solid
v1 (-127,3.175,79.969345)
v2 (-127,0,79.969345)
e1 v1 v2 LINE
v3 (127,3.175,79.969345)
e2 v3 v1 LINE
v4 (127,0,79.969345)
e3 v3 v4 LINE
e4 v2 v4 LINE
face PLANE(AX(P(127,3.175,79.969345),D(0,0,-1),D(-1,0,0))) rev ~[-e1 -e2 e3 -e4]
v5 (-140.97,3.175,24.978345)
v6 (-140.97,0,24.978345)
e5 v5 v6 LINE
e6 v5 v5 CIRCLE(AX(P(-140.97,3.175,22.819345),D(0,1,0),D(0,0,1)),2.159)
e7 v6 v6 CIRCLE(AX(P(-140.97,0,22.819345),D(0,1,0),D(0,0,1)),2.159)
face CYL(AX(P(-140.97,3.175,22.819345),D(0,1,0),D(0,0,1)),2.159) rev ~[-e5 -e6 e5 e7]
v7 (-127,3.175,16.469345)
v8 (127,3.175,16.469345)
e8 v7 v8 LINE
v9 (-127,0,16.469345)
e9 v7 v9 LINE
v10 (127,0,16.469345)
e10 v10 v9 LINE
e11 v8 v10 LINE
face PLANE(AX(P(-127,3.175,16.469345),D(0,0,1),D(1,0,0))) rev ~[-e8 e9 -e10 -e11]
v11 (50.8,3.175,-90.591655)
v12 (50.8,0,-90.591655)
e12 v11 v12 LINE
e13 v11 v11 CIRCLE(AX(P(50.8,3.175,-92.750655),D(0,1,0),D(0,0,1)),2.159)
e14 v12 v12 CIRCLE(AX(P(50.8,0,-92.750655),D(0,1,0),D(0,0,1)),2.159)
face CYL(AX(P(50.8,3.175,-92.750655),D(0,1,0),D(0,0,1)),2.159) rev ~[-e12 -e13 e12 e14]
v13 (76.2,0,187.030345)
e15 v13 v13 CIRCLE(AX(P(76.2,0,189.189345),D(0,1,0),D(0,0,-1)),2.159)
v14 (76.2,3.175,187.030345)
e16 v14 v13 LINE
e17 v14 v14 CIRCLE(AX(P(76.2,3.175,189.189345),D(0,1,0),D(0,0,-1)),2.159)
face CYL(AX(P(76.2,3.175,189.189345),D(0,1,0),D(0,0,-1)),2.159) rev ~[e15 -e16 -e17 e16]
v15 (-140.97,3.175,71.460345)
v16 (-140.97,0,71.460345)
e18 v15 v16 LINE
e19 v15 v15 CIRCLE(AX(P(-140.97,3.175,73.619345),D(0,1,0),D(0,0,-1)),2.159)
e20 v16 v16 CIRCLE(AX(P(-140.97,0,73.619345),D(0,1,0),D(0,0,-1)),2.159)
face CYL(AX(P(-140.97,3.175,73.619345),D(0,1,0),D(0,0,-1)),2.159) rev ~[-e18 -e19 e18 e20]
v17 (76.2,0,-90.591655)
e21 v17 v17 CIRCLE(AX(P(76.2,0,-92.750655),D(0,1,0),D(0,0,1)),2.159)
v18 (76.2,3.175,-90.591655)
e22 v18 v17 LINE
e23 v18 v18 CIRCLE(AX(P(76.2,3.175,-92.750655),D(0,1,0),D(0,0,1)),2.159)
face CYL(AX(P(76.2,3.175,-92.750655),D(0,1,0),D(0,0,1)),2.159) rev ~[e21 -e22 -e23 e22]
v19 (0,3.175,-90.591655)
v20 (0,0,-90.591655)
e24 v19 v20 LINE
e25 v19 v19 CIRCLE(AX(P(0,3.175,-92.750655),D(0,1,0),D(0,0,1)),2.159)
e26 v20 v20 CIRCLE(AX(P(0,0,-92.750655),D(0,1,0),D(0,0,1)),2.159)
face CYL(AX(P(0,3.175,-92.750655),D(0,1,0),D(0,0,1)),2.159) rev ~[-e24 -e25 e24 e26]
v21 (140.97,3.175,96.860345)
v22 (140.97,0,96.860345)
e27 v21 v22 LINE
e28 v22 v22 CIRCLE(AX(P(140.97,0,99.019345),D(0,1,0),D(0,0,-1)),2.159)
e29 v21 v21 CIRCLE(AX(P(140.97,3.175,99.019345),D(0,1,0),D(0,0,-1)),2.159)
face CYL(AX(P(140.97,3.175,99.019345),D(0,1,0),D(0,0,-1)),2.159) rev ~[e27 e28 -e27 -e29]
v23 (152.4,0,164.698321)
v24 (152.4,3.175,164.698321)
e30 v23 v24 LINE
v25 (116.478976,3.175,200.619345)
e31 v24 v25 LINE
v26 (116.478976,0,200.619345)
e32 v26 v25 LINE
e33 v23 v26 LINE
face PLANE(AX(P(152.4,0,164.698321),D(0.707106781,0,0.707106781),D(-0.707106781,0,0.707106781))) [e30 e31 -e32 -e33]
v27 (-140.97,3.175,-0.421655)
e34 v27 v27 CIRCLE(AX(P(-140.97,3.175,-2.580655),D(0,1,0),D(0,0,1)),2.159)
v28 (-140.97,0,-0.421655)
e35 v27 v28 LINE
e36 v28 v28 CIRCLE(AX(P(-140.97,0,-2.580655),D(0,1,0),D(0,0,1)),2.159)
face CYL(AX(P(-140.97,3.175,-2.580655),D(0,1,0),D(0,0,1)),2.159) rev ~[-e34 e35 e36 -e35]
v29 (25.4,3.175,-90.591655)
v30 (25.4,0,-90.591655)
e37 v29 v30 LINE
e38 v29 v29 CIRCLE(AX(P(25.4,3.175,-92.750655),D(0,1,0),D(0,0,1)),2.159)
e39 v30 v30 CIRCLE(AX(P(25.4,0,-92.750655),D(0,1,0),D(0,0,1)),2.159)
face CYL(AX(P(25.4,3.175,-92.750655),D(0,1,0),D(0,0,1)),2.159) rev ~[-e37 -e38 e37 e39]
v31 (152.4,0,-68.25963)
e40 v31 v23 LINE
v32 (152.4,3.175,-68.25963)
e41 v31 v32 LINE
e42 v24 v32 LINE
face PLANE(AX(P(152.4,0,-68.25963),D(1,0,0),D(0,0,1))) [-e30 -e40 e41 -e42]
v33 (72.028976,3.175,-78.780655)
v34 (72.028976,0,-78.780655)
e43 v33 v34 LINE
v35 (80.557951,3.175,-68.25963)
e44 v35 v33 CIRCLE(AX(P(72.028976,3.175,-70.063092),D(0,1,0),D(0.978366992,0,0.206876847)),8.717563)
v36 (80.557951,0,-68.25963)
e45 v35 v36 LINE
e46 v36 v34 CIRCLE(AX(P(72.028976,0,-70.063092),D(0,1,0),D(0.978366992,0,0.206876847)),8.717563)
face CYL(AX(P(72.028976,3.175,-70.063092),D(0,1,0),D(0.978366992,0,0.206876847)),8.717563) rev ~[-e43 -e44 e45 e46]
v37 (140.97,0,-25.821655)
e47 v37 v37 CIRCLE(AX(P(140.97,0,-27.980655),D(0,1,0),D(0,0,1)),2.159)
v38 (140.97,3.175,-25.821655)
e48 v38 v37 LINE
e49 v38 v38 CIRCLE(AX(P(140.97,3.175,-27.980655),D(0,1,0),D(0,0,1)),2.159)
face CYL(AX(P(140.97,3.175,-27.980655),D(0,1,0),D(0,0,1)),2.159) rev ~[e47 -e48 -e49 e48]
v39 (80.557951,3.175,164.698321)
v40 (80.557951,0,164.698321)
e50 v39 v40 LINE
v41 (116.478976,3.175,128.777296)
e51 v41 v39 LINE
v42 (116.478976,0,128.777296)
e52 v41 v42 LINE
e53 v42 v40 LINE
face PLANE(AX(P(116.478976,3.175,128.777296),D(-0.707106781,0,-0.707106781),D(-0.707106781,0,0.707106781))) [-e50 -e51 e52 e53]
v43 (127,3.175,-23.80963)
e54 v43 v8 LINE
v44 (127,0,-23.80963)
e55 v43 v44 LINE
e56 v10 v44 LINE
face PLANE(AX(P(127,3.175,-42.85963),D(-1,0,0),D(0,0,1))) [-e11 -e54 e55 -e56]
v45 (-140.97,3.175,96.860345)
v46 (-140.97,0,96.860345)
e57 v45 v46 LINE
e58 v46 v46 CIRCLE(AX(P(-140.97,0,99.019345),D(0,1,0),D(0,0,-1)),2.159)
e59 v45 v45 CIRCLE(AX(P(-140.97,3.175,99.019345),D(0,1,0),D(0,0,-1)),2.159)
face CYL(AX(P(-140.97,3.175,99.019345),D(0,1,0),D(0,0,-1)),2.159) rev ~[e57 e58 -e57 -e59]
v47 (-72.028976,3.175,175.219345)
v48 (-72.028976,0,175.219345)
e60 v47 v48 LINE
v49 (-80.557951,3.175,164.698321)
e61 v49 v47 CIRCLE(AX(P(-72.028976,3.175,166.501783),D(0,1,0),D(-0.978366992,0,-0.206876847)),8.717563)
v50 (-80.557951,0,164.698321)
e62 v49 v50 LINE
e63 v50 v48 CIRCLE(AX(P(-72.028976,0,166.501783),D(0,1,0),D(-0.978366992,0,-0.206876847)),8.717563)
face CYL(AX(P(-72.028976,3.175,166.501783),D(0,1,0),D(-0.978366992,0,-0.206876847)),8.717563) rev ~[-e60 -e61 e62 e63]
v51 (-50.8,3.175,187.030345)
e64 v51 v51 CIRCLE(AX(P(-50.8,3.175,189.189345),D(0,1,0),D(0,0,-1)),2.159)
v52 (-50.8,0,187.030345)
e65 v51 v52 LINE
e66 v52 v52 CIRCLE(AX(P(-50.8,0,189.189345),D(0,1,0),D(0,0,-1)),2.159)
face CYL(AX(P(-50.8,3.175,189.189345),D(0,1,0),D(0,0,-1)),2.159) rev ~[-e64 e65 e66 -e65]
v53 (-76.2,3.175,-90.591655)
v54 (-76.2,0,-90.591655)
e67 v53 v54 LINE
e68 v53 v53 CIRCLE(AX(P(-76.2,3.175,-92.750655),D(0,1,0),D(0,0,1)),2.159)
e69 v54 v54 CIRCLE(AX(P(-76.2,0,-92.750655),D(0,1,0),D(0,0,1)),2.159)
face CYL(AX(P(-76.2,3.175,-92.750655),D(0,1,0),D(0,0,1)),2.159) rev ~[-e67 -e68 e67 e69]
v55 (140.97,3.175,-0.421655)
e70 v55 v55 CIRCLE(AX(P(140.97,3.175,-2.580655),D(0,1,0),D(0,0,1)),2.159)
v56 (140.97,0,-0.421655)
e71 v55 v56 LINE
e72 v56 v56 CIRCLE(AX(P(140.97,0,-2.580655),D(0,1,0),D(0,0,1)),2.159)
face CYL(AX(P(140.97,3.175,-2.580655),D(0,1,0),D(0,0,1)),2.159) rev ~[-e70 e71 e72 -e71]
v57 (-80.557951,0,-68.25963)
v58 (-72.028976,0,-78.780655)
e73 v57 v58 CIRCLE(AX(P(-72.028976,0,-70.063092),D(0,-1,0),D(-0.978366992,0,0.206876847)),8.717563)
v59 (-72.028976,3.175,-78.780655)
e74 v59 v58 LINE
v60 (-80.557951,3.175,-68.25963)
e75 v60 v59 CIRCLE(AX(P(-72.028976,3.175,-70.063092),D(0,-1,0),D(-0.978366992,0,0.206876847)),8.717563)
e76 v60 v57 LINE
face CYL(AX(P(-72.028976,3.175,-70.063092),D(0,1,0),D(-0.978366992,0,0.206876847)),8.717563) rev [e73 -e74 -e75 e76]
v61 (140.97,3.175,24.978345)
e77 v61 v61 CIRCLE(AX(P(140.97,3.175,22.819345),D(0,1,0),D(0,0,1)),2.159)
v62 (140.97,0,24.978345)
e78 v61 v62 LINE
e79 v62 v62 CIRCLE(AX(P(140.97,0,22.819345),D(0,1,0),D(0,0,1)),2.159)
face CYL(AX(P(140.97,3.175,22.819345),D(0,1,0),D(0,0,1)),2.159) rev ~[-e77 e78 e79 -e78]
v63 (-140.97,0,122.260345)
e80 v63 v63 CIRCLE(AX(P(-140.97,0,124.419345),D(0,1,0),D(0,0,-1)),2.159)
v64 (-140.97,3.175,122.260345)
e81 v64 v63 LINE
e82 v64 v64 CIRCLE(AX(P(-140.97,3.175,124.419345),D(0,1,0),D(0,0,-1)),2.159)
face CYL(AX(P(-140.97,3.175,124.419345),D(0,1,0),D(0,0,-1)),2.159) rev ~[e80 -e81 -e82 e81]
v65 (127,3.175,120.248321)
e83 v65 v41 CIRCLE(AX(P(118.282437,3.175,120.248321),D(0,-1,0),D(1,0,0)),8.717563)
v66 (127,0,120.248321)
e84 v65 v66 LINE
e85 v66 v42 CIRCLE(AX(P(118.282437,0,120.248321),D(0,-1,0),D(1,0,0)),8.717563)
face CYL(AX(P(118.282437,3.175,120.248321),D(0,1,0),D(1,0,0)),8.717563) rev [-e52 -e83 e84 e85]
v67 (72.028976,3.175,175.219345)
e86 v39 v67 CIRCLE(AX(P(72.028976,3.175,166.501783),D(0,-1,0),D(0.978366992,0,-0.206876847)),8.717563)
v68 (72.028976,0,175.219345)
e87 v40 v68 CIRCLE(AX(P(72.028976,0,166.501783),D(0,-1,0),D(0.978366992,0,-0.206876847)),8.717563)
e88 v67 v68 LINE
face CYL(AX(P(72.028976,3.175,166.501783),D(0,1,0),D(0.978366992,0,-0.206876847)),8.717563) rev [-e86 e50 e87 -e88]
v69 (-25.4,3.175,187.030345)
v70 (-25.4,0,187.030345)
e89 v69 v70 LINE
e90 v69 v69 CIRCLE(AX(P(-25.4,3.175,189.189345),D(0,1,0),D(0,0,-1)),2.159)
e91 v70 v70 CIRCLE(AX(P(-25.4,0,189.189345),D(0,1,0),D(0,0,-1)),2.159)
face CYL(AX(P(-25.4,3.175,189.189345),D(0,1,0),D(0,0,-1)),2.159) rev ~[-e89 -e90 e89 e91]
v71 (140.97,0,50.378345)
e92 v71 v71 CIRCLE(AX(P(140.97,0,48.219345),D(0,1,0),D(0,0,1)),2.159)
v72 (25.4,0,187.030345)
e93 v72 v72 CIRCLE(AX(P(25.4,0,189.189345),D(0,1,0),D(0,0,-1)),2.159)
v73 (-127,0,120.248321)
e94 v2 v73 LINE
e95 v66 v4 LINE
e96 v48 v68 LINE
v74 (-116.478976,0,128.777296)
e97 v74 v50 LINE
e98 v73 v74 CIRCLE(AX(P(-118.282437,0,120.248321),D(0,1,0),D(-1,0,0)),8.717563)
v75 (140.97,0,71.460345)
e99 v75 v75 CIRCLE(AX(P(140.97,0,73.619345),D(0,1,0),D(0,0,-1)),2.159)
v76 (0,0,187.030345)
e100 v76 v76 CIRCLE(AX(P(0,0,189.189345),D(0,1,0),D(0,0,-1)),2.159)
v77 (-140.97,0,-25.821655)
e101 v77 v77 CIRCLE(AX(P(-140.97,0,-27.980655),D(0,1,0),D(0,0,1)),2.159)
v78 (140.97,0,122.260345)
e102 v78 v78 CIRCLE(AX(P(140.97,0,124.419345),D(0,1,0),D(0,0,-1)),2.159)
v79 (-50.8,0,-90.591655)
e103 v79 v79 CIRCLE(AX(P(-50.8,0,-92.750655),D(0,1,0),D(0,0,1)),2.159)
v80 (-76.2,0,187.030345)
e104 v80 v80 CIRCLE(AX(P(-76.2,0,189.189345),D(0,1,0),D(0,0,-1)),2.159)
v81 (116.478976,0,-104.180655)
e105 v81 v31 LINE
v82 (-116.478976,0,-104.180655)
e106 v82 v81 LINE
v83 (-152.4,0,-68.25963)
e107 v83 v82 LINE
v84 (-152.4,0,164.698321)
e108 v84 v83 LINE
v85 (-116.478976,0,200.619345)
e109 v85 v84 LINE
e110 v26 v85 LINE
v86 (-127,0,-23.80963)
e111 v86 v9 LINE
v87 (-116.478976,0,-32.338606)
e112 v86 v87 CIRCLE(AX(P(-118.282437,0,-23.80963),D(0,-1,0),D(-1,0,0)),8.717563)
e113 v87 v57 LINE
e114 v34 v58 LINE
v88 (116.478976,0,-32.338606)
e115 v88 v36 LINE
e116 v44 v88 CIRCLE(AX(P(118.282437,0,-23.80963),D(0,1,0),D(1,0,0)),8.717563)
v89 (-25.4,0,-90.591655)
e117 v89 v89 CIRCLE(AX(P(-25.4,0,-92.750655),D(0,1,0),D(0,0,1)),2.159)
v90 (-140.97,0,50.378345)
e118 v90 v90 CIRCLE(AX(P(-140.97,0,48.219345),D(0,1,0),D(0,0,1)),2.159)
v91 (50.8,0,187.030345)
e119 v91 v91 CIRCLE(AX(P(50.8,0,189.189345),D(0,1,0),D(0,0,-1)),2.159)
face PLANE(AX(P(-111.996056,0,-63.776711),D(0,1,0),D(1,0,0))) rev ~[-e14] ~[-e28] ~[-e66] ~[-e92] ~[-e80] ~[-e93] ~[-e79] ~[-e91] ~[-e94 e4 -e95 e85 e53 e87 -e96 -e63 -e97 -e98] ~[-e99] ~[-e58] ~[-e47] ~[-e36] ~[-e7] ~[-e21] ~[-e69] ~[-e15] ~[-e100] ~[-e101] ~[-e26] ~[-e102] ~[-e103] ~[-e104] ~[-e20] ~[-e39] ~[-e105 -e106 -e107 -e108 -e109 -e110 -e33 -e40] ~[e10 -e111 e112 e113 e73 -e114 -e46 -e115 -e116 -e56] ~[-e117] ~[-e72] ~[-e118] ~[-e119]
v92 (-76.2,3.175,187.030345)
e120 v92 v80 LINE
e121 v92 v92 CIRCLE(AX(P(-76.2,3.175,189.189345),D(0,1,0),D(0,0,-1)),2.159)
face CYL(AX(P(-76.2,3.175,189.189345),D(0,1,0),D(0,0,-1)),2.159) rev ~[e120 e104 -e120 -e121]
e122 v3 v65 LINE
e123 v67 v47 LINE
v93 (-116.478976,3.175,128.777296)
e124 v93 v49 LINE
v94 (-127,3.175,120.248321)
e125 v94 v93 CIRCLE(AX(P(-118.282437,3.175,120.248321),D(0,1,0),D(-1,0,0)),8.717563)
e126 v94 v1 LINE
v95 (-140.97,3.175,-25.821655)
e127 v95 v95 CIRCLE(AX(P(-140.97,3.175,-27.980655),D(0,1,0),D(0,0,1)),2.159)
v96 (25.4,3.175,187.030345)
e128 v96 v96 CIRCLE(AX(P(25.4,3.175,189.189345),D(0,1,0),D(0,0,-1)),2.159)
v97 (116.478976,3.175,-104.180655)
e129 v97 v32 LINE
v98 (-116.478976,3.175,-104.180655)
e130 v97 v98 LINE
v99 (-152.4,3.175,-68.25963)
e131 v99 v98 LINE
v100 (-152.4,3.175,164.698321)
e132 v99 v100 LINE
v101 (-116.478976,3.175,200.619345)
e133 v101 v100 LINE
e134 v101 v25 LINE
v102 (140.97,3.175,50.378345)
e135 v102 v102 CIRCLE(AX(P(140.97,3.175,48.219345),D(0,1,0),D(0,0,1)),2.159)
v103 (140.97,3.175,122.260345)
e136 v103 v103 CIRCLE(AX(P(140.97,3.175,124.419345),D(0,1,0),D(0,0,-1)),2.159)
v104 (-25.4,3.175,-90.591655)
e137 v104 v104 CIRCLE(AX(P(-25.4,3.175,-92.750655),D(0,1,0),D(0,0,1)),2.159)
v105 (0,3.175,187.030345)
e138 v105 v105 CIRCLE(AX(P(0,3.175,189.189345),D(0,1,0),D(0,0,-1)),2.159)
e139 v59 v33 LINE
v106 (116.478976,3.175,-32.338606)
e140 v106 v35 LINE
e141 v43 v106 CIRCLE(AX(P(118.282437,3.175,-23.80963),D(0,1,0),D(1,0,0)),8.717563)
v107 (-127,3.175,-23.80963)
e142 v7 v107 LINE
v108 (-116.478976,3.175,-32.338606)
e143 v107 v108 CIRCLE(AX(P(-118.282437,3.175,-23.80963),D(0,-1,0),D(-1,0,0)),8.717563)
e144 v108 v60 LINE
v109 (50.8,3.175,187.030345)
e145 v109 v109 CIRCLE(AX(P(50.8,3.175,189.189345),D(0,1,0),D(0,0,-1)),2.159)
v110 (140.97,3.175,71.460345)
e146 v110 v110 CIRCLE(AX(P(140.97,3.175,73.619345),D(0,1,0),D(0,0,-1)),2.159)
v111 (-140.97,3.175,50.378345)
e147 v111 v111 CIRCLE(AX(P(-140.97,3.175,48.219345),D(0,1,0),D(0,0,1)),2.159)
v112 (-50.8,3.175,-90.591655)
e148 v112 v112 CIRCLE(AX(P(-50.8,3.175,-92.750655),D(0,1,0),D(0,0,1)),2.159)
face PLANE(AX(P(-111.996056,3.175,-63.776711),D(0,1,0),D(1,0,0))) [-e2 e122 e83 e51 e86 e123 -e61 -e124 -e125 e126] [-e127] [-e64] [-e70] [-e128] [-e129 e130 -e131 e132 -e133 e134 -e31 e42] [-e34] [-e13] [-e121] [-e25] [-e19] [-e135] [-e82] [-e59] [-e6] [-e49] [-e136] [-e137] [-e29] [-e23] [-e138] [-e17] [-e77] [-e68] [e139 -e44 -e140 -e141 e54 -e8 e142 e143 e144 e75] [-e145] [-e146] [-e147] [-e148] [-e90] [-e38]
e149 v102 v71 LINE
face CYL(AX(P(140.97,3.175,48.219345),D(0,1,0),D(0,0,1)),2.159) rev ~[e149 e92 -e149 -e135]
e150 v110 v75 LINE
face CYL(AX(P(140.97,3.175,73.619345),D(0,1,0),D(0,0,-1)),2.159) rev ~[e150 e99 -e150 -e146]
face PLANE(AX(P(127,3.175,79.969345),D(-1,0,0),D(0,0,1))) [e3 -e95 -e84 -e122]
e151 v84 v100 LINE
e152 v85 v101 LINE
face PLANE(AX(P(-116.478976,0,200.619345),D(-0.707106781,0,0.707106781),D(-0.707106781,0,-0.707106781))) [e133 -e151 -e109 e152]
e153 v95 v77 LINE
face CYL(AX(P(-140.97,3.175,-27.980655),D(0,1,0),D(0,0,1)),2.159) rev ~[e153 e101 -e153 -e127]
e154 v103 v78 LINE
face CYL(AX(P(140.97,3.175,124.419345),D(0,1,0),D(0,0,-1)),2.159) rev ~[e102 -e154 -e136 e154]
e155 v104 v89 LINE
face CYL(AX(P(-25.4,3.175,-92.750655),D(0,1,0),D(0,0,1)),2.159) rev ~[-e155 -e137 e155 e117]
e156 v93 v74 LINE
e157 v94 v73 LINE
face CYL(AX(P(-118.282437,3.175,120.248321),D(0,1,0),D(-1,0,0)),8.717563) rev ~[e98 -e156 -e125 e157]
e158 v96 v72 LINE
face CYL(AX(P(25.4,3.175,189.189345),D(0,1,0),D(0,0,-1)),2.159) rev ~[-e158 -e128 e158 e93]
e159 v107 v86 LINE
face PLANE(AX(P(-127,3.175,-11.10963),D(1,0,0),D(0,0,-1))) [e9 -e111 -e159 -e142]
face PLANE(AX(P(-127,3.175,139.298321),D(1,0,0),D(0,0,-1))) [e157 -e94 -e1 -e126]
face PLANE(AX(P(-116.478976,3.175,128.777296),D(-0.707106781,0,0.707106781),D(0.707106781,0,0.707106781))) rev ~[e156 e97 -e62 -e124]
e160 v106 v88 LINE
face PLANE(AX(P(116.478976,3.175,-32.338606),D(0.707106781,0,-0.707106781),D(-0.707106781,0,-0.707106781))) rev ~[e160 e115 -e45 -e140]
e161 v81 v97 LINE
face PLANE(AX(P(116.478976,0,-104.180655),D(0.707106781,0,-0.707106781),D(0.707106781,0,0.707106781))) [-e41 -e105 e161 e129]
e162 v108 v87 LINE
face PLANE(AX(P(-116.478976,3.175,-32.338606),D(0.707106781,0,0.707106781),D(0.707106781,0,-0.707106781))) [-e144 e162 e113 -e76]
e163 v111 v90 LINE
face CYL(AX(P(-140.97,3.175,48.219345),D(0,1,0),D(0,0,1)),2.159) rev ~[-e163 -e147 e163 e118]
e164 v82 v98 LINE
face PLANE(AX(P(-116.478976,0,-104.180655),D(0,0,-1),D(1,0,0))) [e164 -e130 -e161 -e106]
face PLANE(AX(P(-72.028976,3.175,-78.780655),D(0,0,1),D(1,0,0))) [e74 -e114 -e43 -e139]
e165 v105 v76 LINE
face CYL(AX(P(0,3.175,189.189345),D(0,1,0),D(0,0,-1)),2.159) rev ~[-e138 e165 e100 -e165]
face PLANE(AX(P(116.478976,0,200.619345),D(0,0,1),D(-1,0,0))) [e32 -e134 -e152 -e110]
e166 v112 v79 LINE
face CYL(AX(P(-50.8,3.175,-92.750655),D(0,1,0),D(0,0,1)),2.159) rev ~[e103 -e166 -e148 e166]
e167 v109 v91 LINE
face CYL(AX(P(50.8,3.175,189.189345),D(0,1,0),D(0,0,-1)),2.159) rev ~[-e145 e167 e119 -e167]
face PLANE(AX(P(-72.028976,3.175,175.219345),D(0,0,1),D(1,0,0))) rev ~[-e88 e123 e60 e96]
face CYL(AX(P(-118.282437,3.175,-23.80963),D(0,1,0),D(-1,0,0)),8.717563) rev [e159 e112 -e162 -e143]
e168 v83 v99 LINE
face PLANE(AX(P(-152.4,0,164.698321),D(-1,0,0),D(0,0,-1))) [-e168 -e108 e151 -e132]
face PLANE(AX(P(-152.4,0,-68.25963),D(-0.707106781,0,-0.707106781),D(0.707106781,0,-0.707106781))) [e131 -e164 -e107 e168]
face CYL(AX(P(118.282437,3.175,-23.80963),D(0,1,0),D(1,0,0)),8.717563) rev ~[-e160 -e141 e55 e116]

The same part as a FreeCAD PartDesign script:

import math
import FreeCAD as App
import Part
import Sketcher
from FreeCAD import Vector
Q = App.Units.Quantity


def add_polygon(sketch, points):
    """Adds a closed chain of lines whose ends are joined by coincident constraints."""
    first, n = sketch.GeometryCount, len(points)
    for a, b in zip(points, points[1:] + points[:1]):
        sketch.addGeometry(Part.LineSegment(App.Vector(*a, 0), App.Vector(*b, 0)), False)
    for i in range(n):
        sketch.addConstraint(Sketcher.Constraint("Coincident", first + i, 2, first + (i + 1) % n, 1))

doc = App.newDocument("Part")
body = doc.addObject("PartDesign::Body", "Body")

sketch1 = body.newObject("Sketcher::SketchObject", "Sketch")
sketch1.AttachmentSupport = (doc.getObject("XZ_Plane"), [""])
sketch1.MapMode = "FlatFace"
add_polygon(sketch1, [(-116, -104), (-152, -68), (-152, 165), (-116, 201), (116, 201), (152, 165), (152, -68), (116, -104)])
sketch1.addConstraint(Sketcher.Constraint("Vertical", 1))
sketch1.addConstraint(Sketcher.Constraint("Horizontal", 3))
sketch1.addConstraint(Sketcher.Constraint("Vertical", 5))
sketch1.addConstraint(Sketcher.Constraint("Horizontal", 7))
sketch1.addConstraint(Sketcher.Constraint("Symmetric", 1, 2, 4, 2, -2))
sketch1.addConstraint(Sketcher.Constraint("Perpendicular", 0, 2))
sketch1.addConstraint(Sketcher.Constraint("Perpendicular", 2, 4))
sketch1.addConstraint(Sketcher.Constraint("Perpendicular", 4, 6))
sketch1.addConstraint(Sketcher.Constraint("Horizontal", 0, 2, 5, 2))
sketch1.addConstraint(Sketcher.Constraint("Vertical", 3, 2, 6, 2))
sketch1.addConstraint(Sketcher.Constraint("Vertical", 2, 2, 7, 2))
sketch1.addConstraint(Sketcher.Constraint("Equal", 7, 1))
sketch1.addConstraint(Sketcher.Constraint("Distance", 0, Q("2 in")))
sketch1.addConstraint(Sketcher.Constraint("DistanceX", 0, 2, -1, 1, Q("6 in")))
sketch1.addConstraint(Sketcher.Constraint("DistanceY", 0, 2, -1, 1, 68.25963))
pad1 = body.newObject("PartDesign::Pad", "Pad")
pad1.Profile = sketch1
pad1.Length = Q("0.125 in")
pad1.Reversed = True

sketch2 = body.newObject("Sketcher::SketchObject", "Sketch001")
sketch2.AttachmentSupport = (doc.getObject("XZ_Plane"), [""])
sketch2.MapMode = "FlatFace"
sketch2.AttachmentOffset = App.Placement(Vector(0, 0, -0.125 * 25.4), App.Rotation())
add_polygon(sketch2, [(91, -79), (-91, -79), (-127, -43), (-127, 16), (127, 16), (127, -43)])
add_polygon(sketch2, [(91, 175), (127, 139), (127, 80), (-127, 80), (-127, 139), (-91, 175)])
sketch2.addConstraint(Sketcher.Constraint("Horizontal", 0))
sketch2.addConstraint(Sketcher.Constraint("Vertical", 2))
sketch2.addConstraint(Sketcher.Constraint("Horizontal", 3))
sketch2.addConstraint(Sketcher.Constraint("Vertical", 4))
sketch2.addConstraint(Sketcher.Constraint("Vertical", 7))
sketch2.addConstraint(Sketcher.Constraint("Horizontal", 8))
sketch2.addConstraint(Sketcher.Constraint("Vertical", 9))
sketch2.addConstraint(Sketcher.Constraint("Horizontal", 11))
sketch2.addConstraint(Sketcher.Constraint("Symmetric", 1, 2, 4, 2, -2))
sketch2.addConstraint(Sketcher.Constraint("Symmetric", 6, 2, 9, 2, -2))
sketch2.addConstraint(Sketcher.Constraint("Perpendicular", 1, 5))
sketch2.addConstraint(Sketcher.Constraint("Perpendicular", 5, 6))
sketch2.addConstraint(Sketcher.Constraint("Perpendicular", 6, 10))
sketch2.addConstraint(Sketcher.Constraint("Vertical", 4, 2, 6, 2))
sketch2.addConstraint(Sketcher.Constraint("Vertical", 0, 2, 10, 2))
sketch2.addConstraint(Sketcher.Constraint("Vertical", 5, 2, 11, 2))
sketch2.addConstraint(Sketcher.Constraint("Equal", 4, 7))
sketch2.addConstraint(Sketcher.Constraint("DistanceX", 3, 1, 3, 2, Q("10 in")))
sketch2.addConstraint(Sketcher.Constraint("Distance", 1, Q("2 in")))
sketch2.addConstraint(Sketcher.Constraint("DistanceY", 3, 2, 7, 2, Q("2.5 in")))
sketch2.addConstraint(Sketcher.Constraint("DistanceY", 0, 2, 2, 2, Q("3.75 in")))
sketch2.addConstraint(Sketcher.Constraint("DistanceY", 1, 2, -1, 1, 42.85963))
pocket1 = body.newObject("PartDesign::Pocket", "Pocket")
pocket1.Profile = sketch2
pocket1.Type = "ThroughAll"
pocket1.Reversed = True

sketch3 = body.newObject("Sketcher::SketchObject", "Sketch002")
sketch3.AttachmentSupport = (doc.getObject("XZ_Plane"), [""])
sketch3.MapMode = "FlatFace"
sketch3.AttachmentOffset = App.Placement(Vector(0, 0, -0.125 * 25.4), App.Rotation())
sketch3.addGeometry(Part.LineSegment(Vector(-116, -32, 0), Vector(-81, -68, 0)), False)
sketch3.addGeometry(Part.ArcOfCircle(Part.Circle(Vector(-72, -70, 0), Vector(0, 0, 1), 9), math.radians(168), math.radians(270)), False)
sketch3.addGeometry(Part.LineSegment(Vector(-72, -79, 0), Vector(-59, -79, 0)), False)
sketch3.addGeometry(Part.LineSegment(Vector(-59, -79, 0), Vector(-59, -104, 0)), False)
sketch3.addGeometry(Part.LineSegment(Vector(-59, -104, 0), Vector(-116, -104, 0)), False)
sketch3.addGeometry(Part.LineSegment(Vector(-116, -104, 0), Vector(-152, -68, 0)), False)
sketch3.addGeometry(Part.LineSegment(Vector(-152, -68, 0), Vector(-152, -11, 0)), False)
sketch3.addGeometry(Part.LineSegment(Vector(-152, -11, 0), Vector(-127, -11, 0)), False)
sketch3.addGeometry(Part.LineSegment(Vector(-127, -11, 0), Vector(-127, -24, 0)), False)
sketch3.addGeometry(Part.ArcOfCircle(Part.Circle(Vector(-118, -24, 0), Vector(0, 0, 1), 9), math.radians(-180), math.radians(-78)), False)
sketch3.addGeometry(Part.LineSegment(Vector(127, -24, 0), Vector(127, -11, 0)), False)
sketch3.addGeometry(Part.LineSegment(Vector(127, -11, 0), Vector(152, -11, 0)), False)
sketch3.addGeometry(Part.LineSegment(Vector(152, -11, 0), Vector(152, -68, 0)), False)
sketch3.addGeometry(Part.LineSegment(Vector(152, -68, 0), Vector(116, -104, 0)), False)
sketch3.addGeometry(Part.LineSegment(Vector(116, -104, 0), Vector(59, -104, 0)), False)
sketch3.addGeometry(Part.LineSegment(Vector(59, -104, 0), Vector(59, -79, 0)), False)
sketch3.addGeometry(Part.LineSegment(Vector(59, -79, 0), Vector(72, -79, 0)), False)
sketch3.addGeometry(Part.ArcOfCircle(Part.Circle(Vector(72, -70, 0), Vector(0, 0, 1), 9), math.radians(-90), math.radians(12)), False)
sketch3.addGeometry(Part.LineSegment(Vector(81, -68, 0), Vector(116, -32, 0)), False)
sketch3.addGeometry(Part.ArcOfCircle(Part.Circle(Vector(118, -24, 0), Vector(0, 0, 1), 9), math.radians(-102), math.radians(0)), False)
sketch3.addGeometry(Part.LineSegment(Vector(116, 129, 0), Vector(81, 165, 0)), False)
sketch3.addGeometry(Part.ArcOfCircle(Part.Circle(Vector(72, 167, 0), Vector(0, 0, 1), 9), math.radians(-12), math.radians(90)), False)
sketch3.addGeometry(Part.LineSegment(Vector(72, 175, 0), Vector(59, 175, 0)), False)
sketch3.addGeometry(Part.LineSegment(Vector(59, 175, 0), Vector(59, 201, 0)), False)
sketch3.addGeometry(Part.LineSegment(Vector(59, 201, 0), Vector(116, 201, 0)), False)
sketch3.addGeometry(Part.LineSegment(Vector(116, 201, 0), Vector(152, 165, 0)), False)
sketch3.addGeometry(Part.LineSegment(Vector(152, 165, 0), Vector(152, 108, 0)), False)
sketch3.addGeometry(Part.LineSegment(Vector(152, 108, 0), Vector(127, 108, 0)), False)
sketch3.addGeometry(Part.LineSegment(Vector(127, 108, 0), Vector(127, 120, 0)), False)
sketch3.addGeometry(Part.ArcOfCircle(Part.Circle(Vector(118, 120, 0), Vector(0, 0, 1), 9), math.radians(0), math.radians(102)), False)
sketch3.addGeometry(Part.LineSegment(Vector(-127, 120, 0), Vector(-127, 108, 0)), False)
sketch3.addGeometry(Part.LineSegment(Vector(-127, 108, 0), Vector(-152, 108, 0)), False)
sketch3.addGeometry(Part.LineSegment(Vector(-152, 108, 0), Vector(-152, 165, 0)), False)
sketch3.addGeometry(Part.LineSegment(Vector(-152, 165, 0), Vector(-116, 201, 0)), False)
sketch3.addGeometry(Part.LineSegment(Vector(-116, 201, 0), Vector(-59, 201, 0)), False)
sketch3.addGeometry(Part.LineSegment(Vector(-59, 201, 0), Vector(-59, 175, 0)), False)
sketch3.addGeometry(Part.LineSegment(Vector(-59, 175, 0), Vector(-72, 175, 0)), False)
sketch3.addGeometry(Part.ArcOfCircle(Part.Circle(Vector(-72, 167, 0), Vector(0, 0, 1), 9), math.radians(90), math.radians(192)), False)
sketch3.addGeometry(Part.LineSegment(Vector(-81, 165, 0), Vector(-116, 129, 0)), False)
sketch3.addGeometry(Part.ArcOfCircle(Part.Circle(Vector(-118, 120, 0), Vector(0, 0, 1), 9), math.radians(78), math.radians(180)), False)
sketch3.addConstraint(Sketcher.Constraint("Coincident", 0, 2, 1, 1))
sketch3.addConstraint(Sketcher.Constraint("Tangent", 1, 2, 2, 1))
sketch3.addConstraint(Sketcher.Constraint("Coincident", 2, 2, 3, 1))
sketch3.addConstraint(Sketcher.Constraint("Coincident", 3, 2, 4, 1))
sketch3.addConstraint(Sketcher.Constraint("Coincident", 4, 2, 5, 1))
sketch3.addConstraint(Sketcher.Constraint("Coincident", 5, 2, 6, 1))
sketch3.addConstraint(Sketcher.Constraint("Coincident", 6, 2, 7, 1))
sketch3.addConstraint(Sketcher.Constraint("Coincident", 7, 2, 8, 1))
sketch3.addConstraint(Sketcher.Constraint("Tangent", 8, 2, 9, 1))
sketch3.addConstraint(Sketcher.Constraint("Coincident", 9, 2, 0, 1))
sketch3.addConstraint(Sketcher.Constraint("Coincident", 10, 2, 11, 1))
sketch3.addConstraint(Sketcher.Constraint("Coincident", 11, 2, 12, 1))
sketch3.addConstraint(Sketcher.Constraint("Coincident", 12, 2, 13, 1))
sketch3.addConstraint(Sketcher.Constraint("Coincident", 13, 2, 14, 1))
sketch3.addConstraint(Sketcher.Constraint("Coincident", 14, 2, 15, 1))
sketch3.addConstraint(Sketcher.Constraint("Coincident", 15, 2, 16, 1))
sketch3.addConstraint(Sketcher.Constraint("Tangent", 16, 2, 17, 1))
sketch3.addConstraint(Sketcher.Constraint("Coincident", 17, 2, 18, 1))
sketch3.addConstraint(Sketcher.Constraint("Coincident", 18, 2, 19, 1))
sketch3.addConstraint(Sketcher.Constraint("Tangent", 19, 2, 10, 1))
sketch3.addConstraint(Sketcher.Constraint("Coincident", 20, 2, 21, 1))
sketch3.addConstraint(Sketcher.Constraint("Tangent", 21, 2, 22, 1))
sketch3.addConstraint(Sketcher.Constraint("Coincident", 22, 2, 23, 1))
sketch3.addConstraint(Sketcher.Constraint("Coincident", 23, 2, 24, 1))
sketch3.addConstraint(Sketcher.Constraint("Coincident", 24, 2, 25, 1))
sketch3.addConstraint(Sketcher.Constraint("Coincident", 25, 2, 26, 1))
sketch3.addConstraint(Sketcher.Constraint("Coincident", 26, 2, 27, 1))
sketch3.addConstraint(Sketcher.Constraint("Coincident", 27, 2, 28, 1))
sketch3.addConstraint(Sketcher.Constraint("Tangent", 28, 2, 29, 1))
sketch3.addConstraint(Sketcher.Constraint("Coincident", 29, 2, 20, 1))
sketch3.addConstraint(Sketcher.Constraint("Coincident", 30, 2, 31, 1))
sketch3.addConstraint(Sketcher.Constraint("Coincident", 31, 2, 32, 1))
sketch3.addConstraint(Sketcher.Constraint("Coincident", 32, 2, 33, 1))
sketch3.addConstraint(Sketcher.Constraint("Coincident", 33, 2, 34, 1))
sketch3.addConstraint(Sketcher.Constraint("Coincident", 34, 2, 35, 1))
sketch3.addConstraint(Sketcher.Constraint("Coincident", 35, 2, 36, 1))
sketch3.addConstraint(Sketcher.Constraint("Tangent", 36, 2, 37, 1))
sketch3.addConstraint(Sketcher.Constraint("Coincident", 37, 2, 38, 1))
sketch3.addConstraint(Sketcher.Constraint("Coincident", 38, 2, 39, 1))
sketch3.addConstraint(Sketcher.Constraint("Tangent", 39, 2, 30, 1))
sketch3.addConstraint(Sketcher.Constraint("Horizontal", 2))
sketch3.addConstraint(Sketcher.Constraint("Vertical", 3))
sketch3.addConstraint(Sketcher.Constraint("Horizontal", 4))
sketch3.addConstraint(Sketcher.Constraint("Vertical", 6))
sketch3.addConstraint(Sketcher.Constraint("Horizontal", 7))
sketch3.addConstraint(Sketcher.Constraint("Vertical", 8))
sketch3.addConstraint(Sketcher.Constraint("Vertical", 10))
sketch3.addConstraint(Sketcher.Constraint("Horizontal", 11))
sketch3.addConstraint(Sketcher.Constraint("Vertical", 12))
sketch3.addConstraint(Sketcher.Constraint("Horizontal", 14))
sketch3.addConstraint(Sketcher.Constraint("Vertical", 15))
sketch3.addConstraint(Sketcher.Constraint("Horizontal", 16))
sketch3.addConstraint(Sketcher.Constraint("Horizontal", 22))
sketch3.addConstraint(Sketcher.Constraint("Vertical", 23))
sketch3.addConstraint(Sketcher.Constraint("Horizontal", 24))
sketch3.addConstraint(Sketcher.Constraint("Vertical", 26))
sketch3.addConstraint(Sketcher.Constraint("Horizontal", 27))
sketch3.addConstraint(Sketcher.Constraint("Vertical", 28))
sketch3.addConstraint(Sketcher.Constraint("Vertical", 30))
sketch3.addConstraint(Sketcher.Constraint("Horizontal", 31))
sketch3.addConstraint(Sketcher.Constraint("Vertical", 32))
sketch3.addConstraint(Sketcher.Constraint("Horizontal", 34))
sketch3.addConstraint(Sketcher.Constraint("Vertical", 35))
sketch3.addConstraint(Sketcher.Constraint("Horizontal", 36))
sketch3.addConstraint(Sketcher.Constraint("Equal", 1, 9))
sketch3.addConstraint(Sketcher.Constraint("Equal", 9, 17))
sketch3.addConstraint(Sketcher.Constraint("Equal", 17, 19))
sketch3.addConstraint(Sketcher.Constraint("Equal", 19, 21))
sketch3.addConstraint(Sketcher.Constraint("Equal", 21, 29))
sketch3.addConstraint(Sketcher.Constraint("Equal", 29, 37))
sketch3.addConstraint(Sketcher.Constraint("Equal", 37, 39))
sketch3.addConstraint(Sketcher.Constraint("Symmetric", 1, 3, 17, 3, -2))
sketch3.addConstraint(Sketcher.Constraint("Symmetric", 9, 3, 19, 3, -2))
sketch3.addConstraint(Sketcher.Constraint("Symmetric", 21, 3, 37, 3, -2))
sketch3.addConstraint(Sketcher.Constraint("Symmetric", 29, 3, 39, 3, -2))
sketch3.addConstraint(Sketcher.Constraint("Symmetric", 6, 2, 11, 2, -2))
sketch3.addConstraint(Sketcher.Constraint("Symmetric", 4, 2, 13, 2, -2))
sketch3.addConstraint(Sketcher.Constraint("Symmetric", 26, 2, 31, 2, -2))
sketch3.addConstraint(Sketcher.Constraint("Symmetric", 24, 2, 33, 2, -2))
sketch3.addConstraint(Sketcher.Constraint("Parallel", 0, 5))
sketch3.addConstraint(Sketcher.Constraint("Perpendicular", 5, 13))
sketch3.addConstraint(Sketcher.Constraint("Parallel", 13, 18))
sketch3.addConstraint(Sketcher.Constraint("Perpendicular", 18, 20))
sketch3.addConstraint(Sketcher.Constraint("Parallel", 20, 25))
sketch3.addConstraint(Sketcher.Constraint("Perpendicular", 25, 33))
sketch3.addConstraint(Sketcher.Constraint("Parallel", 33, 38))
sketch3.addConstraint(Sketcher.Constraint("Horizontal", 0, 2, 5, 2))
sketch3.addConstraint(Sketcher.Constraint("Horizontal", 5, 2, 12, 2))
sketch3.addConstraint(Sketcher.Constraint("Horizontal", 12, 2, 17, 2))
sketch3.addConstraint(Sketcher.Constraint("Horizontal", 20, 2, 25, 2))
sketch3.addConstraint(Sketcher.Constraint("Horizontal", 32, 2, 37, 2))
sketch3.addConstraint(Sketcher.Constraint("Vertical", 17, 3, 21, 3))
sketch3.addConstraint(Sketcher.Constraint("Vertical", 19, 3, 29, 3))
sketch3.addConstraint(Sketcher.Constraint("Vertical", 4, 2, 9, 2))
sketch3.addConstraint(Sketcher.Constraint("Vertical", 17, 2, 20, 2))
sketch3.addConstraint(Sketcher.Constraint("Vertical", 15, 2, 22, 2))
sketch3.addConstraint(Sketcher.Constraint("Vertical", 18, 2, 24, 2))
sketch3.addConstraint(Sketcher.Constraint("Vertical", 12, 2, 25, 2))
sketch3.addConstraint(Sketcher.Constraint("Vertical", 24, 2, 29, 2))
sketch3.addConstraint(Sketcher.Constraint("Vertical", 3, 2, 34, 2))
sketch3.addConstraint(Sketcher.Constraint("Equal", 4, 14))
sketch3.addConstraint(Sketcher.Constraint("Equal", 31, 3))
sketch3.addConstraint(Sketcher.Constraint("Equal", 34, 6))
sketch3.addConstraint(Sketcher.Constraint("Equal", 12, 26))
sketch3.addConstraint(Sketcher.Constraint("Equal", 0, 5))
sketch3.addConstraint(Sketcher.Constraint("DistanceX", 7, 1, 7, 2, Q("1 in")))
sketch3.addConstraint(Sketcher.Constraint("Distance", 0, Q("2 in")))
sketch3.addConstraint(Sketcher.Constraint("DistanceX", 2, 1, 2, 2, Q("0.5 in")))
sketch3.addConstraint(Sketcher.Constraint("DistanceX", 5, 2, -1, 1, Q("6 in")))
sketch3.addConstraint(Sketcher.Constraint("DistanceX", 4, 2, 4, 1, Q("2.25 in")))
sketch3.addConstraint(Sketcher.Constraint("DistanceY", 9, 3, -1, 1, 23.80963))
sketch3.addConstraint(Sketcher.Constraint("DistanceY", -1, 1, 29, 3, 120.248321))
pad2 = body.newObject("PartDesign::Pad", "Pad001")
pad2.Profile = sketch3
pad2.Length = Q("0.125 in")

sketch4 = body.newObject("Sketcher::SketchObject", "Sketch003")
sketch4.AttachmentSupport = (doc.getObject("XZ_Plane"), [""])
sketch4.MapMode = "FlatFace"
sketch4.AttachmentOffset = App.Placement(Vector(0, 0, -0.125 * 25.4), App.Rotation())
sketch4.addGeometry(Part.Circle(Vector(0, -92.8, 0), Vector(0, 0, 1), 2.2), False)
sketch4.addGeometry(Part.Circle(Vector(-50.8, -92.8, 0), Vector(0, 0, 1), 2.2), False)
sketch4.addGeometry(Part.Circle(Vector(50.8, -92.8, 0), Vector(0, 0, 1), 2.2), False)
sketch4.addGeometry(Part.Circle(Vector(-25.4, -92.8, 0), Vector(0, 0, 1), 2.2), False)
sketch4.addGeometry(Part.Circle(Vector(25.4, -92.8, 0), Vector(0, 0, 1), 2.2), False)
sketch4.addGeometry(Part.Circle(Vector(-141, 48.2, 0), Vector(0, 0, 1), 2.2), False)
sketch4.addGeometry(Part.Circle(Vector(-141, 22.8, 0), Vector(0, 0, 1), 2.2), False)
sketch4.addGeometry(Part.Circle(Vector(-141, -2.6, 0), Vector(0, 0, 1), 2.2), False)
sketch4.addGeometry(Part.Circle(Vector(141, 48.2, 0), Vector(0, 0, 1), 2.2), False)
sketch4.addGeometry(Part.Circle(Vector(141, 22.8, 0), Vector(0, 0, 1), 2.2), False)
sketch4.addGeometry(Part.Circle(Vector(141, -2.6, 0), Vector(0, 0, 1), 2.2), False)
sketch4.addGeometry(Part.Circle(Vector(141, 99, 0), Vector(0, 0, 1), 2.2), False)
sketch4.addGeometry(Part.Circle(Vector(141, 73.6, 0), Vector(0, 0, 1), 2.2), False)
sketch4.addGeometry(Part.Circle(Vector(-141, 99, 0), Vector(0, 0, 1), 2.2), False)
sketch4.addGeometry(Part.Circle(Vector(-141, 73.6, 0), Vector(0, 0, 1), 2.2), False)
sketch4.addGeometry(Part.Circle(Vector(25.4, 189.2, 0), Vector(0, 0, 1), 2.2), False)
sketch4.addGeometry(Part.Circle(Vector(-25.4, 189.2, 0), Vector(0, 0, 1), 2.2), False)
sketch4.addGeometry(Part.Circle(Vector(50.8, 189.2, 0), Vector(0, 0, 1), 2.2), False)
sketch4.addGeometry(Part.Circle(Vector(-50.8, 189.2, 0), Vector(0, 0, 1), 2.2), False)
sketch4.addGeometry(Part.Circle(Vector(0, 189.2, 0), Vector(0, 0, 1), 2.2), False)
sketch4.addGeometry(Part.Circle(Vector(-76.2, -92.8, 0), Vector(0, 0, 1), 2.2), False)
sketch4.addGeometry(Part.Circle(Vector(76.2, -92.8, 0), Vector(0, 0, 1), 2.2), False)
sketch4.addGeometry(Part.Circle(Vector(-141, -28, 0), Vector(0, 0, 1), 2.2), False)
sketch4.addGeometry(Part.Circle(Vector(141, -28, 0), Vector(0, 0, 1), 2.2), False)
sketch4.addGeometry(Part.Circle(Vector(141, 124.4, 0), Vector(0, 0, 1), 2.2), False)
sketch4.addGeometry(Part.Circle(Vector(76.2, 189.2, 0), Vector(0, 0, 1), 2.2), False)
sketch4.addGeometry(Part.Circle(Vector(-76.2, 189.2, 0), Vector(0, 0, 1), 2.2), False)
sketch4.addGeometry(Part.Circle(Vector(-141, 124.4, 0), Vector(0, 0, 1), 2.2), False)
sketch4.addConstraint(Sketcher.Constraint("Equal", 0, 1))
sketch4.addConstraint(Sketcher.Constraint("Equal", 1, 2))
sketch4.addConstraint(Sketcher.Constraint("Equal", 2, 3))
sketch4.addConstraint(Sketcher.Constraint("Equal", 3, 4))
sketch4.addConstraint(Sketcher.Constraint("Equal", 4, 5))
sketch4.addConstraint(Sketcher.Constraint("Equal", 5, 6))
sketch4.addConstraint(Sketcher.Constraint("Equal", 6, 7))
sketch4.addConstraint(Sketcher.Constraint("Equal", 7, 8))
sketch4.addConstraint(Sketcher.Constraint("Equal", 8, 9))
sketch4.addConstraint(Sketcher.Constraint("Equal", 9, 10))
sketch4.addConstraint(Sketcher.Constraint("Equal", 10, 11))
sketch4.addConstraint(Sketcher.Constraint("Equal", 11, 12))
sketch4.addConstraint(Sketcher.Constraint("Equal", 12, 13))
sketch4.addConstraint(Sketcher.Constraint("Equal", 13, 14))
sketch4.addConstraint(Sketcher.Constraint("Equal", 14, 15))
sketch4.addConstraint(Sketcher.Constraint("Equal", 15, 16))
sketch4.addConstraint(Sketcher.Constraint("Equal", 16, 17))
sketch4.addConstraint(Sketcher.Constraint("Equal", 17, 18))
sketch4.addConstraint(Sketcher.Constraint("Equal", 18, 19))
sketch4.addConstraint(Sketcher.Constraint("Equal", 19, 20))
sketch4.addConstraint(Sketcher.Constraint("Equal", 20, 21))
sketch4.addConstraint(Sketcher.Constraint("Equal", 21, 22))
sketch4.addConstraint(Sketcher.Constraint("Equal", 22, 23))
sketch4.addConstraint(Sketcher.Constraint("Equal", 23, 24))
sketch4.addConstraint(Sketcher.Constraint("Equal", 24, 25))
sketch4.addConstraint(Sketcher.Constraint("Equal", 25, 26))
sketch4.addConstraint(Sketcher.Constraint("Equal", 26, 27))
sketch4.addConstraint(Sketcher.Constraint("Symmetric", 1, 3, 2, 3, -2))
sketch4.addConstraint(Sketcher.Constraint("Symmetric", 3, 3, 4, 3, -2))
sketch4.addConstraint(Sketcher.Constraint("Symmetric", 5, 3, 8, 3, -2))
sketch4.addConstraint(Sketcher.Constraint("Symmetric", 6, 3, 9, 3, -2))
sketch4.addConstraint(Sketcher.Constraint("Symmetric", 7, 3, 10, 3, -2))
sketch4.addConstraint(Sketcher.Constraint("Symmetric", 11, 3, 13, 3, -2))
sketch4.addConstraint(Sketcher.Constraint("Symmetric", 12, 3, 14, 3, -2))
sketch4.addConstraint(Sketcher.Constraint("Symmetric", 15, 3, 16, 3, -2))
sketch4.addConstraint(Sketcher.Constraint("Symmetric", 17, 3, 18, 3, -2))
sketch4.addConstraint(Sketcher.Constraint("Symmetric", 20, 3, 21, 3, -2))
sketch4.addConstraint(Sketcher.Constraint("Symmetric", 22, 3, 23, 3, -2))
sketch4.addConstraint(Sketcher.Constraint("Symmetric", 25, 3, 26, 3, -2))
sketch4.addConstraint(Sketcher.Constraint("Symmetric", 24, 3, 27, 3, -2))
sketch4.addConstraint(Sketcher.Constraint("PointOnObject", 0, 3, -2))
sketch4.addConstraint(Sketcher.Constraint("PointOnObject", 19, 3, -2))
sketch4.addConstraint(Sketcher.Constraint("Horizontal", 0, 3, 1, 3))
sketch4.addConstraint(Sketcher.Constraint("Horizontal", 2, 3, 3, 3))
sketch4.addConstraint(Sketcher.Constraint("Horizontal", 16, 3, 17, 3))
sketch4.addConstraint(Sketcher.Constraint("Horizontal", 18, 3, 19, 3))
sketch4.addConstraint(Sketcher.Constraint("Horizontal", 4, 3, 20, 3))
sketch4.addConstraint(Sketcher.Constraint("Horizontal", 19, 3, 25, 3))
sketch4.addConstraint(Sketcher.Constraint("Vertical", 5, 3, 6, 3))
sketch4.addConstraint(Sketcher.Constraint("Vertical", 6, 3, 7, 3))
sketch4.addConstraint(Sketcher.Constraint("Vertical", 10, 3, 11, 3))
sketch4.addConstraint(Sketcher.Constraint("Vertical", 11, 3, 12, 3))
sketch4.addConstraint(Sketcher.Constraint("Vertical", 4, 3, 15, 3))
sketch4.addConstraint(Sketcher.Constraint("Vertical", 2, 3, 17, 3))
sketch4.addConstraint(Sketcher.Constraint("Vertical", 14, 3, 22, 3))
sketch4.addConstraint(Sketcher.Constraint("Vertical", 23, 3, 24, 3))
sketch4.addConstraint(Sketcher.Constraint("Vertical", 21, 3, 25, 3))
sketch4.addConstraint(Sketcher.Constraint("Diameter", 0, Q("0.17 in")))
sketch4.addConstraint(Sketcher.Constraint("DistanceX", 1, 3, -1, 1, Q("2 in")))
sketch4.addConstraint(Sketcher.Constraint("DistanceX", 3, 3, -1, 1, Q("1 in")))
sketch4.addConstraint(Sketcher.Constraint("DistanceX", 20, 3, -1, 1, Q("3 in")))
sketch4.addConstraint(Sketcher.Constraint("DistanceY", 6, 3, 5, 3, Q("1 in")))
sketch4.addConstraint(Sketcher.Constraint("DistanceY", 7, 3, 6, 3, Q("1 in")))
sketch4.addConstraint(Sketcher.Constraint("DistanceY", 8, 3, 11, 3, Q("2 in")))
sketch4.addConstraint(Sketcher.Constraint("DistanceY", 12, 3, 11, 3, Q("1 in")))
sketch4.addConstraint(Sketcher.Constraint("DistanceY", 22, 3, 7, 3, Q("1 in")))
sketch4.addConstraint(Sketcher.Constraint("DistanceY", 11, 3, 24, 3, Q("1 in")))
sketch4.addConstraint(Sketcher.Constraint("DistanceX", 5, 3, -1, 1, Q("5.55 in")))
sketch4.addConstraint(Sketcher.Constraint("DistanceY", 1, 3, 5, 3, Q("5.55 in")))
sketch4.addConstraint(Sketcher.Constraint("DistanceY", 11, 3, 15, 3, Q("3.55 in")))
sketch4.addConstraint(Sketcher.Constraint("DistanceY", 0, 3, -1, 1, 92.750655))
pocket2 = body.newObject("PartDesign::Pocket", "Pocket001")
pocket2.Profile = sketch4
pocket2.Type = "ThroughAll"
pocket2.Reversed = True

doc.recompute()
